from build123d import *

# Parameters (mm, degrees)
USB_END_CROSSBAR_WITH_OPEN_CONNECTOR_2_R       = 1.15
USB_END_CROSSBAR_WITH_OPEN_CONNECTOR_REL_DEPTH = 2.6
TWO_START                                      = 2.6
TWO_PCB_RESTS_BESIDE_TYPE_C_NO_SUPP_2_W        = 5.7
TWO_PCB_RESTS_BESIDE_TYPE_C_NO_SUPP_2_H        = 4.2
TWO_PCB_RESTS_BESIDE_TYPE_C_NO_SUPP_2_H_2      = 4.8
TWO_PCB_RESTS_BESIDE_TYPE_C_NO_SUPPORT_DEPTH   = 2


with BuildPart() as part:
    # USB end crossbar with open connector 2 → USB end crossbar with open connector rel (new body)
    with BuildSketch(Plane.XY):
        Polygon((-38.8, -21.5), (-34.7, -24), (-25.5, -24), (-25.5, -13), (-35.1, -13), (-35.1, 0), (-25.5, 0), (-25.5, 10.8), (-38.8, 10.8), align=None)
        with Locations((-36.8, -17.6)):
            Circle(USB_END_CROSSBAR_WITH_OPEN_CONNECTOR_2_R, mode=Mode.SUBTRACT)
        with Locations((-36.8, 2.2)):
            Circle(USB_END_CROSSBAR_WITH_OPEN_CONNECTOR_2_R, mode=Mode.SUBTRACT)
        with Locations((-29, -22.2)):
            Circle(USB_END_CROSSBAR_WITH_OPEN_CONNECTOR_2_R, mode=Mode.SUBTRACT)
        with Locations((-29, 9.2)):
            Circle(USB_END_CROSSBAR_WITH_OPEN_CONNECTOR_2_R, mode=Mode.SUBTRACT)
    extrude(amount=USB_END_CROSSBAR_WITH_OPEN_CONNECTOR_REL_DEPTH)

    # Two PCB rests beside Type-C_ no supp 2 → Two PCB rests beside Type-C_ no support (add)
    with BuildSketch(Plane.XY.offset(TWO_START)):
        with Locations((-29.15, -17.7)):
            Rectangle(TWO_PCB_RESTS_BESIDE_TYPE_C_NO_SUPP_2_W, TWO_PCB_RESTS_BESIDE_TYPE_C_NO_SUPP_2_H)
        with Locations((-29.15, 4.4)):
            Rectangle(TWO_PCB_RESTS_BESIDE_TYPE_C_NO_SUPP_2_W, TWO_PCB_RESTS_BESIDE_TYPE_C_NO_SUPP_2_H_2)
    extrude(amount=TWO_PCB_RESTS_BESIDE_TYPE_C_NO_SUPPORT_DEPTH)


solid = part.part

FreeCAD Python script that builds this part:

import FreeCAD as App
import Part
import Sketcher
Q = App.Units.Quantity

doc = App.newDocument("Part")
params = doc.addObject("Spreadsheet::Sheet", "Params")
for row, (alias, value) in enumerate([
    ("sketch1_diameter", "2.3 mm"),
    ("sketch1_height", "11 mm"),
    ("sketch1_height2", "13 mm"),
    ("sketch1_width", "9.2 mm"),
    ("sketch1_width2", "9.6 mm"),
    ("pad1_length", "2.6 mm"),
    ("sketch2_width", "5.7 mm"),
    ("sketch2_height", "4.2 mm"),
    ("sketch2_height2", "4.8 mm"),
    ("pad2_length", "2 mm"),
], start=1):
    params.set(f"A{row}", alias)
    params.set(f"B{row}", "=" + value)
    params.setAlias(f"B{row}", alias)

body = doc.addObject("PartDesign::Body", "Body")

# Sketch on XY plane
sketch1 = body.newObject("Sketcher::SketchObject", "Sketch")
sketch1.AttachmentSupport = (doc.getObject("XY_Plane"), [""])
sketch1.MapMode = "FlatFace"
sketch1.addGeometry([
    Part.LineSegment(App.Vector(-38.8, -21.5, 0), App.Vector(-34.7, -24, 0)),  # 0
    Part.LineSegment(App.Vector(-34.7, -24, 0), App.Vector(-25.5, -24, 0)),  # 1
    Part.LineSegment(App.Vector(-25.5, -24, 0), App.Vector(-25.5, -13, 0)),  # 2
    Part.LineSegment(App.Vector(-25.5, -13, 0), App.Vector(-35.1, -13, 0)),  # 3
    Part.LineSegment(App.Vector(-35.1, -13, 0), App.Vector(-35.1, 0, 0)),  # 4
    Part.LineSegment(App.Vector(-35.1, 0, 0), App.Vector(-25.5, 0, 0)),  # 5
    Part.LineSegment(App.Vector(-25.5, 0, 0), App.Vector(-25.5, 10.8, 0)),  # 6
    Part.LineSegment(App.Vector(-25.5, 10.8, 0), App.Vector(-38.8, 10.8, 0)),  # 7
    Part.LineSegment(App.Vector(-38.8, 10.8, 0), App.Vector(-38.8, -21.5, 0)),  # 8
    Part.Circle(App.Vector(-36.8, -17.6, 0), App.Vector(0, 0, 1), 1.1),  # 9
    Part.Circle(App.Vector(-29, -22.2, 0), App.Vector(0, 0, 1), 1.1),  # 10
    Part.Circle(App.Vector(-36.8, 2.2, 0), App.Vector(0, 0, 1), 1.1),  # 11
    Part.Circle(App.Vector(-29, 9.2, 0), App.Vector(0, 0, 1), 1.1),  # 12
], False)
sketch1.addConstraint([
    Sketcher.Constraint("Coincident", 0, 2, 1, 1),
    Sketcher.Constraint("Coincident", 1, 2, 2, 1),
    Sketcher.Constraint("Coincident", 2, 2, 3, 1),
    Sketcher.Constraint("Coincident", 3, 2, 4, 1),
    Sketcher.Constraint("Coincident", 4, 2, 5, 1),
    Sketcher.Constraint("Coincident", 5, 2, 6, 1),
    Sketcher.Constraint("Coincident", 6, 2, 7, 1),
    Sketcher.Constraint("Coincident", 7, 2, 8, 1),
    Sketcher.Constraint("Coincident", 8, 2, 0, 1),
    Sketcher.Constraint("Horizontal", 1),
    Sketcher.Constraint("Vertical", 2),
    Sketcher.Constraint("Horizontal", 3),
    Sketcher.Constraint("Vertical", 4),
    Sketcher.Constraint("Horizontal", 5),
    Sketcher.Constraint("Vertical", 6),
    Sketcher.Constraint("Horizontal", 7),
    Sketcher.Constraint("Vertical", 8),
    Sketcher.Constraint("Equal", 9, 10),
    Sketcher.Constraint("Equal", 10, 11),
    Sketcher.Constraint("Equal", 11, 12),
    Sketcher.Constraint("PointOnObject", 4, 2, -1),
    Sketcher.Constraint("Vertical", 9, 3, 11, 3),
    Sketcher.Constraint("Vertical", 10, 3, 12, 3),
    Sketcher.Constraint("Vertical", 2, 2, 5, 2),
    Sketcher.Constraint("Diameter", 9, Q("2.3 mm")),
    Sketcher.Constraint("DistanceY", 2, 1, 2, 2, Q("11 mm")),
    Sketcher.Constraint("DistanceY", 4, 1, 4, 2, Q("13 mm")),
    Sketcher.Constraint("DistanceX", 1, 1, 1, 2, Q("9.2 mm")),
    Sketcher.Constraint("DistanceX", 3, 2, 3, 1, Q("9.6 mm")),
    Sketcher.Constraint("DistanceX", 7, 2, 7, 1, Q("13.3 mm")),
    Sketcher.Constraint("DistanceY", 6, 1, 6, 2, Q("10.8 mm")),
    Sketcher.Constraint("DistanceY", 8, 2, 8, 1, Q("32.3 mm")),
    Sketcher.Constraint("DistanceX", 10, 3, -1, 1, Q("29 mm")),
    Sketcher.Constraint("DistanceY", 11, 3, 12, 3, Q("7 mm")),
    Sketcher.Constraint("DistanceX", 7, 2, 11, 3, Q("2 mm")),
    Sketcher.Constraint("DistanceX", 9, 3, -1, 1, Q("36.8 mm")),
    Sketcher.Constraint("DistanceY", 9, 3, -1, 1, Q("17.6 mm")),
    Sketcher.Constraint("DistanceY", 10, 3, -1, 1, Q("22.2 mm")),
    Sketcher.Constraint("DistanceY", -1, 1, 11, 3, Q("2.2 mm")),
])
sketch1.setExpression("Constraints[24]", "Params.sketch1_diameter")
sketch1.setExpression("Constraints[25]", "Params.sketch1_height")
sketch1.setExpression("Constraints[26]", "Params.sketch1_height2")
sketch1.setExpression("Constraints[27]", "Params.sketch1_width")
sketch1.setExpression("Constraints[28]", "Params.sketch1_width2")
pad1 = body.newObject("PartDesign::Pad", "Pad")
pad1.Profile = sketch1
pad1.setExpression("Length", "Params.pad1_length")

# Sketch on XY plane
sketch2 = body.newObject("Sketcher::SketchObject", "Sketch001")
sketch2.AttachmentSupport = (doc.getObject("XY_Plane"), [""])
sketch2.MapMode = "FlatFace"
sketch2.AttachmentOffset = App.Placement(App.Vector(0, 0, 2.6), App.Rotation())
sketch2.addGeometry([
    Part.LineSegment(App.Vector(-32, -15.6, 0), App.Vector(-32, -19.8, 0)),  # 0
    Part.LineSegment(App.Vector(-32, -19.8, 0), App.Vector(-26.3, -19.8, 0)),  # 1
    Part.LineSegment(App.Vector(-26.3, -19.8, 0), App.Vector(-26.3, -15.6, 0)),  # 2
    Part.LineSegment(App.Vector(-26.3, -15.6, 0), App.Vector(-32, -15.6, 0)),  # 3
    Part.LineSegment(App.Vector(-32, 6.8, 0), App.Vector(-32, 2, 0)),  # 4
    Part.LineSegment(App.Vector(-32, 2, 0), App.Vector(-26.3, 2, 0)),  # 5
    Part.LineSegment(App.Vector(-26.3, 2, 0), App.Vector(-26.3, 6.8, 0)),  # 6
    Part.LineSegment(App.Vector(-26.3, 6.8, 0), App.Vector(-32, 6.8, 0)),  # 7
], False)
sketch2.addConstraint([
    Sketcher.Constraint("Coincident", 0, 2, 1, 1),
    Sketcher.Constraint("Coincident", 1, 2, 2, 1),
    Sketcher.Constraint("Coincident", 2, 2, 3, 1),
    Sketcher.Constraint("Coincident", 3, 2, 0, 1),
    Sketcher.Constraint("Coincident", 4, 2, 5, 1),
    Sketcher.Constraint("Coincident", 5, 2, 6, 1),
    Sketcher.Constraint("Coincident", 6, 2, 7, 1),
    Sketcher.Constraint("Coincident", 7, 2, 4, 1),
    Sketcher.Constraint("Vertical", 0),
    Sketcher.Constraint("Horizontal", 1),
    Sketcher.Constraint("Vertical", 2),
    Sketcher.Constraint("Horizontal", 3),
    Sketcher.Constraint("Vertical", 4),
    Sketcher.Constraint("Horizontal", 5),
    Sketcher.Constraint("Vertical", 6),
    Sketcher.Constraint("Horizontal", 7),
    Sketcher.Constraint("Vertical", 3, 2, 4, 2),
    Sketcher.Constraint("Vertical", 2, 2, 5, 2),
    Sketcher.Constraint("DistanceX", 1, 1, 1, 2, Q("5.7 mm")),
    Sketcher.Constraint("DistanceY", 0, 2, 0, 1, Q("4.2 mm")),
    Sketcher.Constraint("DistanceY", 4, 2, 4, 1, Q("4.8 mm")),
    Sketcher.Constraint("DistanceX", 0, 2, -1, 1, Q("32 mm")),
    Sketcher.Constraint("DistanceY", -1, 1, 4, 2, Q("2 mm")),
    Sketcher.Constraint("DistanceY", 0, 2, -1, 1, Q("19.8 mm")),
])
sketch2.setExpression("Constraints[18]", "Params.sketch2_width")
sketch2.setExpression("Constraints[19]", "Params.sketch2_height")
sketch2.setExpression("Constraints[20]", "Params.sketch2_height2")
pad2 = body.newObject("PartDesign::Pad", "Pad001")
pad2.Profile = sketch2
pad2.setExpression("Length", "Params.pad2_length")

doc.recompute()
